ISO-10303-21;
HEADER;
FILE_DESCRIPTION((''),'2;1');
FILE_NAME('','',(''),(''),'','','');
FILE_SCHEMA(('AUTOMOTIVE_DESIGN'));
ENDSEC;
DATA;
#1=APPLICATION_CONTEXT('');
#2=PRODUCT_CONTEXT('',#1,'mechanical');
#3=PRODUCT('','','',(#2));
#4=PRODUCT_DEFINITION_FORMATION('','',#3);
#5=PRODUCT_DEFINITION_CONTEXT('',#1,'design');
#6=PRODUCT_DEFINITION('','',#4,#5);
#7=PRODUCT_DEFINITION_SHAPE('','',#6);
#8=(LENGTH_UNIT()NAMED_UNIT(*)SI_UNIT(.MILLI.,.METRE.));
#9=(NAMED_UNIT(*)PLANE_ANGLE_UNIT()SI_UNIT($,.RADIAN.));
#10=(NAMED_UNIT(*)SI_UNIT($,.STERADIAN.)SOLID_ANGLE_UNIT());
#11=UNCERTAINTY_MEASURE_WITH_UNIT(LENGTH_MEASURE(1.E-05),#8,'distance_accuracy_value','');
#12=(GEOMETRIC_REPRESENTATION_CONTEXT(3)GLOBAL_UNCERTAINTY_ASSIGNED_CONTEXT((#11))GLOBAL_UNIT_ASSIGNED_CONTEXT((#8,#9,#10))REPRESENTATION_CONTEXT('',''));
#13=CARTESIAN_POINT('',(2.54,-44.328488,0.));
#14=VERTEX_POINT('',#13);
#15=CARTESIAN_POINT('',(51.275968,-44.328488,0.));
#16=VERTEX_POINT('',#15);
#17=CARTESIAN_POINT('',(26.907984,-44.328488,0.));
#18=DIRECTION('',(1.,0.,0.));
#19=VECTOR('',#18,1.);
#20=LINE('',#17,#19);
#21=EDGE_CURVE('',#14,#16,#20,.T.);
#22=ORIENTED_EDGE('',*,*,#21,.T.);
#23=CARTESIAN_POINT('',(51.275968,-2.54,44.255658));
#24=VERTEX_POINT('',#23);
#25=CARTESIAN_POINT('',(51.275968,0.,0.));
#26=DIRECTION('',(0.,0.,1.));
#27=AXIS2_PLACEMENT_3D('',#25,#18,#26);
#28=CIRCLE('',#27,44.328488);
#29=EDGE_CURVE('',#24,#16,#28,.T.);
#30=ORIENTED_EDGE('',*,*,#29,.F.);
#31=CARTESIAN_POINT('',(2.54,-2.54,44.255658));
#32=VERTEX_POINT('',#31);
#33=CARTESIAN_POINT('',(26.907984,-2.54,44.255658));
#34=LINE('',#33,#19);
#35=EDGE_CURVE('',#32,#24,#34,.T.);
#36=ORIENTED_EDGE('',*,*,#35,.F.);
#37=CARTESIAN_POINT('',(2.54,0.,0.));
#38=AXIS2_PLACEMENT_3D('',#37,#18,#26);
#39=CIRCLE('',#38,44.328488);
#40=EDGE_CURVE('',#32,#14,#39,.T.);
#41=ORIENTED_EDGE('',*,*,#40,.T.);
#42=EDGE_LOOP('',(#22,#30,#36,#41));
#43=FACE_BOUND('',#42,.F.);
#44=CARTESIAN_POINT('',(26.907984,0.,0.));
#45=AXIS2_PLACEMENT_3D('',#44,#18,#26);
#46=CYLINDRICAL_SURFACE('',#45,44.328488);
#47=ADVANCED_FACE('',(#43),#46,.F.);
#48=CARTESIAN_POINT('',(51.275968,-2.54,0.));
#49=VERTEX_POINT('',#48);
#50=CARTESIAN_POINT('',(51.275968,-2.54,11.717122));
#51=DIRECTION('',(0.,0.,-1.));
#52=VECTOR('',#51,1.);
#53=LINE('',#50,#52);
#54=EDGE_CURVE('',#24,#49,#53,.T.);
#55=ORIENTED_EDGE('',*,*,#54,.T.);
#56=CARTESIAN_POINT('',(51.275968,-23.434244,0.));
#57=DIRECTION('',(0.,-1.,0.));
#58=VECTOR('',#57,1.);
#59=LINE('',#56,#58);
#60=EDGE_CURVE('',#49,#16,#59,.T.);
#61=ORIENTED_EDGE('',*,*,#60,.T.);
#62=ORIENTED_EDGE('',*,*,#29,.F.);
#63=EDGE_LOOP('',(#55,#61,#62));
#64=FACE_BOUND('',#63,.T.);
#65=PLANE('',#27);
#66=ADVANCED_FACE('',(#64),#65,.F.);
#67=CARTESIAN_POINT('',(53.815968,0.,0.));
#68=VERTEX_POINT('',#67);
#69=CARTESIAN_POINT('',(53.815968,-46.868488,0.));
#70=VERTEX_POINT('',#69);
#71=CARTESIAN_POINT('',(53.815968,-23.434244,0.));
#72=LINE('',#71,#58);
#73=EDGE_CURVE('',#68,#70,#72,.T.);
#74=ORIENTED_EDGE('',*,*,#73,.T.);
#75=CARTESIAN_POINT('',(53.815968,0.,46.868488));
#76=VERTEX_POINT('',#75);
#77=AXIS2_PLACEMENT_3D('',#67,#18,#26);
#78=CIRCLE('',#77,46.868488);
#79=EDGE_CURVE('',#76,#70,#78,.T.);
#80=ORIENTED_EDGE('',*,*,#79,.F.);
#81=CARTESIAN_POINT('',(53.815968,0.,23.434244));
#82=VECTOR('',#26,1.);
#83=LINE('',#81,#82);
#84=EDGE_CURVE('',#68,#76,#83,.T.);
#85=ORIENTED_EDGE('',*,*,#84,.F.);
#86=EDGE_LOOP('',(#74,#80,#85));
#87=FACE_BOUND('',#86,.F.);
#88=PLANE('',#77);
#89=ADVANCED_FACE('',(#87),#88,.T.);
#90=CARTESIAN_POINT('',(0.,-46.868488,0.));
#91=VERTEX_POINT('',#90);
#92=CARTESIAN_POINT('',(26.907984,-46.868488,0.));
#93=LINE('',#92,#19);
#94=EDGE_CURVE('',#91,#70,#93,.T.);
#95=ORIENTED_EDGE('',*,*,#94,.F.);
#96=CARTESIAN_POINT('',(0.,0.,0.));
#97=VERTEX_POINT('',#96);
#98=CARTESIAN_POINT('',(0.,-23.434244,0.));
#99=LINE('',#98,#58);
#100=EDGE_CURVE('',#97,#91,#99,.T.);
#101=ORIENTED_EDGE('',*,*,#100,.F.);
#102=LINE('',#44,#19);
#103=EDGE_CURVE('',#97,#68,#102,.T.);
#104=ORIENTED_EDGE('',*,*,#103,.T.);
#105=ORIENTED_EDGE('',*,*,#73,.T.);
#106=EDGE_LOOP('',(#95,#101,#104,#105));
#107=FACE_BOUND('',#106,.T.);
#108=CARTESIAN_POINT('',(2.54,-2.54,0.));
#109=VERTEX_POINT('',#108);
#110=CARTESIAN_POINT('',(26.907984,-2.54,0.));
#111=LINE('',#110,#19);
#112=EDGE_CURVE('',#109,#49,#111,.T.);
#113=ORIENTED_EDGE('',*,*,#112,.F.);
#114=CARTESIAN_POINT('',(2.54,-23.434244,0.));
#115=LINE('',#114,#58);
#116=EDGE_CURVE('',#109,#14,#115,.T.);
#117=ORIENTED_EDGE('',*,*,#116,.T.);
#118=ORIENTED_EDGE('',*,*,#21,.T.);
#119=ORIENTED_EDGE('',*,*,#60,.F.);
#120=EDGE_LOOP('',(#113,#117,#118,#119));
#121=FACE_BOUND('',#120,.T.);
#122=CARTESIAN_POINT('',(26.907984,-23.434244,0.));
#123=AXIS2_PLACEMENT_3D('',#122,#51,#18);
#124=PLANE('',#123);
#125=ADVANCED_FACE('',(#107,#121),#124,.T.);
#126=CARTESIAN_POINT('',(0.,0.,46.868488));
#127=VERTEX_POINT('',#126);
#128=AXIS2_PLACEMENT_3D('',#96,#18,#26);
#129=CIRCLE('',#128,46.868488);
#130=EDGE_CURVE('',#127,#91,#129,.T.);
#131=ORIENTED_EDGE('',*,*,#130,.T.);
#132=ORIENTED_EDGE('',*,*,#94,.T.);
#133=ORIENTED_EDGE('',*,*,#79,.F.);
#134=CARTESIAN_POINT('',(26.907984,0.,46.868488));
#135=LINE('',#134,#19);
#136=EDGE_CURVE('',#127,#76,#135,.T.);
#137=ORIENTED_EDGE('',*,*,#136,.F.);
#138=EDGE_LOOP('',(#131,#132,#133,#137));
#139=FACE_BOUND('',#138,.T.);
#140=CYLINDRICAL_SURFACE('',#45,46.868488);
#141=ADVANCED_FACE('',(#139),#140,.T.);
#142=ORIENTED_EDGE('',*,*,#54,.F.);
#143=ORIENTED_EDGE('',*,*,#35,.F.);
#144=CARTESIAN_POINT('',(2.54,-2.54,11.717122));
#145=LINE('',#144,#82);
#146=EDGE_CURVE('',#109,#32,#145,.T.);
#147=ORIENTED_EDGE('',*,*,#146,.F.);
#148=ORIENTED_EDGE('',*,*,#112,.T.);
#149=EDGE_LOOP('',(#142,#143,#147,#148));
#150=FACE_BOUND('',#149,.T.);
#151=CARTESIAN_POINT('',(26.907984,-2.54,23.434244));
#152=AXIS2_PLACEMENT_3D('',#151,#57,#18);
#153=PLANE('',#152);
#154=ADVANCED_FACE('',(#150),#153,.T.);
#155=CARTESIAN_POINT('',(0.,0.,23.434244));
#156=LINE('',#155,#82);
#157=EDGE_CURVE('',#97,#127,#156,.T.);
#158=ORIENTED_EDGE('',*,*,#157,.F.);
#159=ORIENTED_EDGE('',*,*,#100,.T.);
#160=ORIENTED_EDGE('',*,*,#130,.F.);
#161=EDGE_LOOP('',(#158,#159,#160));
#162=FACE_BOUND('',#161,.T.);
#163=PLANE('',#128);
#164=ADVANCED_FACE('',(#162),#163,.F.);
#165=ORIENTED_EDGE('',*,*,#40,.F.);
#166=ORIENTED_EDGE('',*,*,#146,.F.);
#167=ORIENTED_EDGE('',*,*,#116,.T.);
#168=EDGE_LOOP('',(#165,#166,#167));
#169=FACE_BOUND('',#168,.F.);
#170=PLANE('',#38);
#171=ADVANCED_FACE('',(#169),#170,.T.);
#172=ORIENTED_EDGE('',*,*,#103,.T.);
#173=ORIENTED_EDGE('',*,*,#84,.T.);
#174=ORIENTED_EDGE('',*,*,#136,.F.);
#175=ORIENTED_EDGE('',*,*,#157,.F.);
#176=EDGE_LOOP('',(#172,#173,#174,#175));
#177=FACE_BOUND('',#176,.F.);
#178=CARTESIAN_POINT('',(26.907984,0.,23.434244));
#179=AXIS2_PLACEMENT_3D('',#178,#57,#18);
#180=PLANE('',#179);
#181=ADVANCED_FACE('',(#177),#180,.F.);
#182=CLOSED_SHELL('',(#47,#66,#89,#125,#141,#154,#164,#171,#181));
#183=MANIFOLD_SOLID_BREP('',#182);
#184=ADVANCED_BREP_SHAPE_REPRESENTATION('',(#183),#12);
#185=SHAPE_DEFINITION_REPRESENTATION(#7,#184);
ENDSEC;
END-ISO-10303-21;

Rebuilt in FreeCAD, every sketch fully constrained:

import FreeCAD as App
import Part
import Sketcher

V = App.Vector


def faces_at(feature, points):
    """Names of the faces that lie closest to the given points."""
    faces = feature.Shape.Faces
    near = lambda p: min(range(len(faces)), key=lambda i: faces[i].distToShape(Part.Vertex(*p))[0])
    return sorted({f"Face{near(p) + 1}" for p in points})


def add_polygon(sketch, points):
    """Adds a closed chain of lines whose ends are joined by coincident constraints."""
    first, n = sketch.GeometryCount, len(points)
    for a, b in zip(points, points[1:] + points[:1]):
        sketch.addGeometry(Part.LineSegment(App.Vector(*a, 0), App.Vector(*b, 0)), False)
    for i in range(n):
        sketch.addConstraint(Sketcher.Constraint("Coincident", first + i, 2, first + (i + 1) % n, 1))

doc = App.newDocument("Part")
params = doc.addObject("Spreadsheet::Sheet", "Params")
for row, (alias, value) in enumerate([
    ("revolution_angle", "90 deg"),
    ("thickness_wall", "0.1 in"),
], start=1):
    params.set(f"A{row}", alias)
    params.set(f"B{row}", "=" + value)
    params.setAlias(f"B{row}", alias)

body = doc.addObject("PartDesign::Body", "Body")

# Sketch on XZ plane
sketch1 = doc.addObject("Sketcher::SketchObject", "Sketch")
body.addObject(sketch1)
sketch1.AttachmentSupport = (doc.XZ_Plane, [""])
sketch1.MapMode = "FlatFace"
add_polygon(sketch1, [(0, 47), (0, 0), (54, 0), (54, 47)])  # lines 0-3
sketch1.addConstraint(Sketcher.Constraint("Vertical", 0))
sketch1.addConstraint(Sketcher.Constraint("Horizontal", 1))
sketch1.addConstraint(Sketcher.Constraint("Vertical", 2))
sketch1.addConstraint(Sketcher.Constraint("Horizontal", 3))
sketch1.addConstraint(Sketcher.Constraint("Coincident", 0, 2, -1, 1))
sketch1.addConstraint(Sketcher.Constraint("DistanceX", 1, 1, 1, 2, 53.815968))
sketch1.addConstraint(Sketcher.Constraint("DistanceY", 0, 2, 0, 1, 46.868488))
revolution = doc.addObject("PartDesign::Revolution", "Revolution")
body.addObject(revolution)
revolution.Profile = sketch1
revolution.ReferenceAxis = (sketch1, ["H_Axis"])
revolution.setExpression("Angle", "Params.revolution_angle")
doc.recompute()

thickness = doc.addObject("PartDesign::Thickness", "Thickness")
body.addObject(thickness)
thickness.Base = (revolution, faces_at(revolution, [(26.908, -23.434, 0)]))
thickness.setExpression("Value", "Params.thickness_wall")
thickness.Reversed = True
thickness.Join = "Arc"

doc.recompute()
